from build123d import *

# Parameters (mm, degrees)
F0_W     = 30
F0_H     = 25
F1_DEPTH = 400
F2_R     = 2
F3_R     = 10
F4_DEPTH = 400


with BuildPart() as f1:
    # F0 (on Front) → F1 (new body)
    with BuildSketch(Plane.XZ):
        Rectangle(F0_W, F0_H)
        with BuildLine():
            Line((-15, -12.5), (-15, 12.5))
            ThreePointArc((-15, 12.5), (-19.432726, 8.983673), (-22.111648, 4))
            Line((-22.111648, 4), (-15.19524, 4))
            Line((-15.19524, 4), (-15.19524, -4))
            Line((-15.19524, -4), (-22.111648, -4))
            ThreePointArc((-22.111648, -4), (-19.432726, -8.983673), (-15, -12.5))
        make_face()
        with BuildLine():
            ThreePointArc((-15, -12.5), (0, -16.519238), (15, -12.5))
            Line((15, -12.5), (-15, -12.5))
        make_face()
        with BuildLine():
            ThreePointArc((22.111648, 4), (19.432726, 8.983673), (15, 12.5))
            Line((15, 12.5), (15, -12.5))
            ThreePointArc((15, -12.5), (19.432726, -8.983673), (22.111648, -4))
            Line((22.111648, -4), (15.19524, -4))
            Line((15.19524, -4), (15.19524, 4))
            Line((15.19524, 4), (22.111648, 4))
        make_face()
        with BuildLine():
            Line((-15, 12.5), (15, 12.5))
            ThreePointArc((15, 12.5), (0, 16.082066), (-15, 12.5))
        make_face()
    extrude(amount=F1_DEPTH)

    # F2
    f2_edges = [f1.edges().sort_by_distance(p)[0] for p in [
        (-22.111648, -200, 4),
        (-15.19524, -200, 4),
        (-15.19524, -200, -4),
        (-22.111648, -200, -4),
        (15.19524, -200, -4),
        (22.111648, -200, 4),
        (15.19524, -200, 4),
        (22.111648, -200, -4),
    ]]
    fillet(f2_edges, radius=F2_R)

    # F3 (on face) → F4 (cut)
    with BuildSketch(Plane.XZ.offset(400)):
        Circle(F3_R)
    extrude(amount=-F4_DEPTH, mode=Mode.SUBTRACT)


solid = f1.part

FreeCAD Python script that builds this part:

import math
import FreeCAD as App
import Part
import Sketcher

V = App.Vector
Q = App.Units.Quantity


def edges_at(feature, points):
    """Names of the edges that pass closest to the given points."""
    edges = feature.Shape.Edges
    near = lambda p: min(range(len(edges)), key=lambda i: edges[i].distToShape(Part.Vertex(*p))[0])
    return sorted({f"Edge{near(p) + 1}" for p in points})

doc = App.newDocument("Part")
body = doc.addObject("PartDesign::Body", "Body")

sketch1 = body.newObject("Sketcher::SketchObject", "Sketch")
sketch1.AttachmentSupport = (doc.getObject("XZ_Plane"), [""])
sketch1.MapMode = "FlatFace"
sketch1.addGeometry([
    Part.ArcOfCircle(Part.Circle(V(-8.695235, -0.000004, 0), V(0, 0, 1), 14.000006), math.radians(116.76551), math.radians(163.398439)),
    Part.LineSegment(V(-22.111648, 4, 0), V(-15.19524, 4, 0)),
    Part.LineSegment(V(-15.19524, 4, 0), V(-15.19524, -4, 0)),
    Part.LineSegment(V(-15.19524, -4, 0), V(-22.111648, -4, 0)),
    Part.ArcOfCircle(Part.Circle(V(-8.695235, 0.000004, 0), V(0, 0, 1), 14.000006), math.radians(-163.398439), math.radians(-116.76551)),
    Part.ArcOfCircle(Part.Circle(V(0, 13.480761, 0), V(0, 0, 1), 29.999999), math.radians(-120.000001), math.radians(-59.999999)),
    Part.ArcOfCircle(Part.Circle(V(8.695235, 0.000004, 0), V(0, 0, 1), 14.000006), math.radians(-63.23449), math.radians(-16.601561)),
    Part.LineSegment(V(22.111648, -4, 0), V(15.19524, -4, 0)),
    Part.LineSegment(V(15.19524, -4, 0), V(15.19524, 4, 0)),
    Part.LineSegment(V(15.19524, 4, 0), V(22.111648, 4, 0)),
    Part.ArcOfCircle(Part.Circle(V(8.695235, -0.000004, 0), V(0, 0, 1), 14.000006), math.radians(16.601561), math.radians(63.23449)),
    Part.ArcOfCircle(Part.Circle(V(0, -17.115423, 0), V(0, 0, 1), 33.197489), math.radians(63.138112), math.radians(116.861888)),
], False)
sketch1.addConstraint([
    Sketcher.Constraint("Coincident", 0, 2, 1, 1),
    Sketcher.Constraint("Coincident", 1, 2, 2, 1),
    Sketcher.Constraint("Coincident", 2, 2, 3, 1),
    Sketcher.Constraint("Coincident", 3, 2, 4, 1),
    Sketcher.Constraint("Coincident", 4, 2, 5, 1),
    Sketcher.Constraint("Coincident", 5, 2, 6, 1),
    Sketcher.Constraint("Coincident", 6, 2, 7, 1),
    Sketcher.Constraint("Coincident", 7, 2, 8, 1),
    Sketcher.Constraint("Coincident", 8, 2, 9, 1),
    Sketcher.Constraint("Coincident", 9, 2, 10, 1),
    Sketcher.Constraint("Coincident", 10, 2, 11, 1),
    Sketcher.Constraint("Coincident", 11, 2, 0, 1),
    Sketcher.Constraint("Horizontal", 1),
    Sketcher.Constraint("Vertical", 2),
    Sketcher.Constraint("Horizontal", 3),
    Sketcher.Constraint("Horizontal", 7),
    Sketcher.Constraint("Vertical", 8),
    Sketcher.Constraint("Horizontal", 9),
    Sketcher.Constraint("Coincident", 4, 3, 0, 3),
    Sketcher.Constraint("Coincident", 10, 3, 6, 3),
    Sketcher.Constraint("Equal", 0, 4),
    Sketcher.Constraint("Equal", 4, 6),
    Sketcher.Constraint("Equal", 6, 10),
    Sketcher.Constraint("Symmetric", 0, 3, 6, 3, -1, 1),
    Sketcher.Constraint("Symmetric", 1, 2, 7, 2, -1, 1),
    Sketcher.Constraint("Symmetric", 4, 2, 5, 2, -2),
    Sketcher.Constraint("PointOnObject", 11, 3, -2),
    Sketcher.Constraint("Horizontal", 3, 2, 6, 2),
    Sketcher.Constraint("Horizontal", 1, 2, 8, 2),
    Sketcher.Constraint("Vertical", 5, 2, 10, 2),
    Sketcher.Constraint("Radius", 5, Q("29.999999 mm")),
    Sketcher.Constraint("DistanceY", 2, 2, 2, 1, Q("8 mm")),
    Sketcher.Constraint("DistanceX", 4, 2, -1, 1, Q("15 mm")),
    Sketcher.Constraint("DistanceY", 4, 2, -1, 1, Q("12.5 mm")),
    Sketcher.Constraint("Radius", 11, Q("33.197489 mm")),
    Sketcher.Constraint("Radius", 0, Q("14.000006 mm")),
    Sketcher.Constraint("DistanceX", 1, 1, 1, 2, Q("6.916408 mm")),
])
pad1 = body.newObject("PartDesign::Pad", "Pad")
pad1.Profile = sketch1
pad1.Length = 400
doc.recompute()

fillet = body.newObject("PartDesign::Fillet", "Fillet")
fillet.Base = (pad1, edges_at(pad1, [
    (-22.112, -200, 4),
    (-15.195, -200, 4),
    (-15.195, -200, -4),
    (-22.112, -200, -4),
    (15.195, -200, -4),
    (22.112, -200, 4),
    (15.195, -200, 4),
    (22.112, -200, -4),
]))
fillet.Radius = 2

sketch2 = body.newObject("Sketcher::SketchObject", "Sketch001")
sketch2.AttachmentSupport = (doc.getObject("XZ_Plane"), [""])
sketch2.MapMode = "FlatFace"
sketch2.AttachmentOffset = App.Placement(V(0, 0, 400), App.Rotation())
sketch2.addGeometry(Part.Circle(V(0, 0, 0), V(0, 0, 1), 10), False)
sketch2.addConstraint([
    Sketcher.Constraint("Coincident", 0, 3, -1, 1),
    Sketcher.Constraint("Diameter", 0, Q("20 mm")),
])
pocket1 = body.newObject("PartDesign::Pocket", "Pocket")
pocket1.Profile = sketch2
pocket1.Length = 400

doc.recompute()
